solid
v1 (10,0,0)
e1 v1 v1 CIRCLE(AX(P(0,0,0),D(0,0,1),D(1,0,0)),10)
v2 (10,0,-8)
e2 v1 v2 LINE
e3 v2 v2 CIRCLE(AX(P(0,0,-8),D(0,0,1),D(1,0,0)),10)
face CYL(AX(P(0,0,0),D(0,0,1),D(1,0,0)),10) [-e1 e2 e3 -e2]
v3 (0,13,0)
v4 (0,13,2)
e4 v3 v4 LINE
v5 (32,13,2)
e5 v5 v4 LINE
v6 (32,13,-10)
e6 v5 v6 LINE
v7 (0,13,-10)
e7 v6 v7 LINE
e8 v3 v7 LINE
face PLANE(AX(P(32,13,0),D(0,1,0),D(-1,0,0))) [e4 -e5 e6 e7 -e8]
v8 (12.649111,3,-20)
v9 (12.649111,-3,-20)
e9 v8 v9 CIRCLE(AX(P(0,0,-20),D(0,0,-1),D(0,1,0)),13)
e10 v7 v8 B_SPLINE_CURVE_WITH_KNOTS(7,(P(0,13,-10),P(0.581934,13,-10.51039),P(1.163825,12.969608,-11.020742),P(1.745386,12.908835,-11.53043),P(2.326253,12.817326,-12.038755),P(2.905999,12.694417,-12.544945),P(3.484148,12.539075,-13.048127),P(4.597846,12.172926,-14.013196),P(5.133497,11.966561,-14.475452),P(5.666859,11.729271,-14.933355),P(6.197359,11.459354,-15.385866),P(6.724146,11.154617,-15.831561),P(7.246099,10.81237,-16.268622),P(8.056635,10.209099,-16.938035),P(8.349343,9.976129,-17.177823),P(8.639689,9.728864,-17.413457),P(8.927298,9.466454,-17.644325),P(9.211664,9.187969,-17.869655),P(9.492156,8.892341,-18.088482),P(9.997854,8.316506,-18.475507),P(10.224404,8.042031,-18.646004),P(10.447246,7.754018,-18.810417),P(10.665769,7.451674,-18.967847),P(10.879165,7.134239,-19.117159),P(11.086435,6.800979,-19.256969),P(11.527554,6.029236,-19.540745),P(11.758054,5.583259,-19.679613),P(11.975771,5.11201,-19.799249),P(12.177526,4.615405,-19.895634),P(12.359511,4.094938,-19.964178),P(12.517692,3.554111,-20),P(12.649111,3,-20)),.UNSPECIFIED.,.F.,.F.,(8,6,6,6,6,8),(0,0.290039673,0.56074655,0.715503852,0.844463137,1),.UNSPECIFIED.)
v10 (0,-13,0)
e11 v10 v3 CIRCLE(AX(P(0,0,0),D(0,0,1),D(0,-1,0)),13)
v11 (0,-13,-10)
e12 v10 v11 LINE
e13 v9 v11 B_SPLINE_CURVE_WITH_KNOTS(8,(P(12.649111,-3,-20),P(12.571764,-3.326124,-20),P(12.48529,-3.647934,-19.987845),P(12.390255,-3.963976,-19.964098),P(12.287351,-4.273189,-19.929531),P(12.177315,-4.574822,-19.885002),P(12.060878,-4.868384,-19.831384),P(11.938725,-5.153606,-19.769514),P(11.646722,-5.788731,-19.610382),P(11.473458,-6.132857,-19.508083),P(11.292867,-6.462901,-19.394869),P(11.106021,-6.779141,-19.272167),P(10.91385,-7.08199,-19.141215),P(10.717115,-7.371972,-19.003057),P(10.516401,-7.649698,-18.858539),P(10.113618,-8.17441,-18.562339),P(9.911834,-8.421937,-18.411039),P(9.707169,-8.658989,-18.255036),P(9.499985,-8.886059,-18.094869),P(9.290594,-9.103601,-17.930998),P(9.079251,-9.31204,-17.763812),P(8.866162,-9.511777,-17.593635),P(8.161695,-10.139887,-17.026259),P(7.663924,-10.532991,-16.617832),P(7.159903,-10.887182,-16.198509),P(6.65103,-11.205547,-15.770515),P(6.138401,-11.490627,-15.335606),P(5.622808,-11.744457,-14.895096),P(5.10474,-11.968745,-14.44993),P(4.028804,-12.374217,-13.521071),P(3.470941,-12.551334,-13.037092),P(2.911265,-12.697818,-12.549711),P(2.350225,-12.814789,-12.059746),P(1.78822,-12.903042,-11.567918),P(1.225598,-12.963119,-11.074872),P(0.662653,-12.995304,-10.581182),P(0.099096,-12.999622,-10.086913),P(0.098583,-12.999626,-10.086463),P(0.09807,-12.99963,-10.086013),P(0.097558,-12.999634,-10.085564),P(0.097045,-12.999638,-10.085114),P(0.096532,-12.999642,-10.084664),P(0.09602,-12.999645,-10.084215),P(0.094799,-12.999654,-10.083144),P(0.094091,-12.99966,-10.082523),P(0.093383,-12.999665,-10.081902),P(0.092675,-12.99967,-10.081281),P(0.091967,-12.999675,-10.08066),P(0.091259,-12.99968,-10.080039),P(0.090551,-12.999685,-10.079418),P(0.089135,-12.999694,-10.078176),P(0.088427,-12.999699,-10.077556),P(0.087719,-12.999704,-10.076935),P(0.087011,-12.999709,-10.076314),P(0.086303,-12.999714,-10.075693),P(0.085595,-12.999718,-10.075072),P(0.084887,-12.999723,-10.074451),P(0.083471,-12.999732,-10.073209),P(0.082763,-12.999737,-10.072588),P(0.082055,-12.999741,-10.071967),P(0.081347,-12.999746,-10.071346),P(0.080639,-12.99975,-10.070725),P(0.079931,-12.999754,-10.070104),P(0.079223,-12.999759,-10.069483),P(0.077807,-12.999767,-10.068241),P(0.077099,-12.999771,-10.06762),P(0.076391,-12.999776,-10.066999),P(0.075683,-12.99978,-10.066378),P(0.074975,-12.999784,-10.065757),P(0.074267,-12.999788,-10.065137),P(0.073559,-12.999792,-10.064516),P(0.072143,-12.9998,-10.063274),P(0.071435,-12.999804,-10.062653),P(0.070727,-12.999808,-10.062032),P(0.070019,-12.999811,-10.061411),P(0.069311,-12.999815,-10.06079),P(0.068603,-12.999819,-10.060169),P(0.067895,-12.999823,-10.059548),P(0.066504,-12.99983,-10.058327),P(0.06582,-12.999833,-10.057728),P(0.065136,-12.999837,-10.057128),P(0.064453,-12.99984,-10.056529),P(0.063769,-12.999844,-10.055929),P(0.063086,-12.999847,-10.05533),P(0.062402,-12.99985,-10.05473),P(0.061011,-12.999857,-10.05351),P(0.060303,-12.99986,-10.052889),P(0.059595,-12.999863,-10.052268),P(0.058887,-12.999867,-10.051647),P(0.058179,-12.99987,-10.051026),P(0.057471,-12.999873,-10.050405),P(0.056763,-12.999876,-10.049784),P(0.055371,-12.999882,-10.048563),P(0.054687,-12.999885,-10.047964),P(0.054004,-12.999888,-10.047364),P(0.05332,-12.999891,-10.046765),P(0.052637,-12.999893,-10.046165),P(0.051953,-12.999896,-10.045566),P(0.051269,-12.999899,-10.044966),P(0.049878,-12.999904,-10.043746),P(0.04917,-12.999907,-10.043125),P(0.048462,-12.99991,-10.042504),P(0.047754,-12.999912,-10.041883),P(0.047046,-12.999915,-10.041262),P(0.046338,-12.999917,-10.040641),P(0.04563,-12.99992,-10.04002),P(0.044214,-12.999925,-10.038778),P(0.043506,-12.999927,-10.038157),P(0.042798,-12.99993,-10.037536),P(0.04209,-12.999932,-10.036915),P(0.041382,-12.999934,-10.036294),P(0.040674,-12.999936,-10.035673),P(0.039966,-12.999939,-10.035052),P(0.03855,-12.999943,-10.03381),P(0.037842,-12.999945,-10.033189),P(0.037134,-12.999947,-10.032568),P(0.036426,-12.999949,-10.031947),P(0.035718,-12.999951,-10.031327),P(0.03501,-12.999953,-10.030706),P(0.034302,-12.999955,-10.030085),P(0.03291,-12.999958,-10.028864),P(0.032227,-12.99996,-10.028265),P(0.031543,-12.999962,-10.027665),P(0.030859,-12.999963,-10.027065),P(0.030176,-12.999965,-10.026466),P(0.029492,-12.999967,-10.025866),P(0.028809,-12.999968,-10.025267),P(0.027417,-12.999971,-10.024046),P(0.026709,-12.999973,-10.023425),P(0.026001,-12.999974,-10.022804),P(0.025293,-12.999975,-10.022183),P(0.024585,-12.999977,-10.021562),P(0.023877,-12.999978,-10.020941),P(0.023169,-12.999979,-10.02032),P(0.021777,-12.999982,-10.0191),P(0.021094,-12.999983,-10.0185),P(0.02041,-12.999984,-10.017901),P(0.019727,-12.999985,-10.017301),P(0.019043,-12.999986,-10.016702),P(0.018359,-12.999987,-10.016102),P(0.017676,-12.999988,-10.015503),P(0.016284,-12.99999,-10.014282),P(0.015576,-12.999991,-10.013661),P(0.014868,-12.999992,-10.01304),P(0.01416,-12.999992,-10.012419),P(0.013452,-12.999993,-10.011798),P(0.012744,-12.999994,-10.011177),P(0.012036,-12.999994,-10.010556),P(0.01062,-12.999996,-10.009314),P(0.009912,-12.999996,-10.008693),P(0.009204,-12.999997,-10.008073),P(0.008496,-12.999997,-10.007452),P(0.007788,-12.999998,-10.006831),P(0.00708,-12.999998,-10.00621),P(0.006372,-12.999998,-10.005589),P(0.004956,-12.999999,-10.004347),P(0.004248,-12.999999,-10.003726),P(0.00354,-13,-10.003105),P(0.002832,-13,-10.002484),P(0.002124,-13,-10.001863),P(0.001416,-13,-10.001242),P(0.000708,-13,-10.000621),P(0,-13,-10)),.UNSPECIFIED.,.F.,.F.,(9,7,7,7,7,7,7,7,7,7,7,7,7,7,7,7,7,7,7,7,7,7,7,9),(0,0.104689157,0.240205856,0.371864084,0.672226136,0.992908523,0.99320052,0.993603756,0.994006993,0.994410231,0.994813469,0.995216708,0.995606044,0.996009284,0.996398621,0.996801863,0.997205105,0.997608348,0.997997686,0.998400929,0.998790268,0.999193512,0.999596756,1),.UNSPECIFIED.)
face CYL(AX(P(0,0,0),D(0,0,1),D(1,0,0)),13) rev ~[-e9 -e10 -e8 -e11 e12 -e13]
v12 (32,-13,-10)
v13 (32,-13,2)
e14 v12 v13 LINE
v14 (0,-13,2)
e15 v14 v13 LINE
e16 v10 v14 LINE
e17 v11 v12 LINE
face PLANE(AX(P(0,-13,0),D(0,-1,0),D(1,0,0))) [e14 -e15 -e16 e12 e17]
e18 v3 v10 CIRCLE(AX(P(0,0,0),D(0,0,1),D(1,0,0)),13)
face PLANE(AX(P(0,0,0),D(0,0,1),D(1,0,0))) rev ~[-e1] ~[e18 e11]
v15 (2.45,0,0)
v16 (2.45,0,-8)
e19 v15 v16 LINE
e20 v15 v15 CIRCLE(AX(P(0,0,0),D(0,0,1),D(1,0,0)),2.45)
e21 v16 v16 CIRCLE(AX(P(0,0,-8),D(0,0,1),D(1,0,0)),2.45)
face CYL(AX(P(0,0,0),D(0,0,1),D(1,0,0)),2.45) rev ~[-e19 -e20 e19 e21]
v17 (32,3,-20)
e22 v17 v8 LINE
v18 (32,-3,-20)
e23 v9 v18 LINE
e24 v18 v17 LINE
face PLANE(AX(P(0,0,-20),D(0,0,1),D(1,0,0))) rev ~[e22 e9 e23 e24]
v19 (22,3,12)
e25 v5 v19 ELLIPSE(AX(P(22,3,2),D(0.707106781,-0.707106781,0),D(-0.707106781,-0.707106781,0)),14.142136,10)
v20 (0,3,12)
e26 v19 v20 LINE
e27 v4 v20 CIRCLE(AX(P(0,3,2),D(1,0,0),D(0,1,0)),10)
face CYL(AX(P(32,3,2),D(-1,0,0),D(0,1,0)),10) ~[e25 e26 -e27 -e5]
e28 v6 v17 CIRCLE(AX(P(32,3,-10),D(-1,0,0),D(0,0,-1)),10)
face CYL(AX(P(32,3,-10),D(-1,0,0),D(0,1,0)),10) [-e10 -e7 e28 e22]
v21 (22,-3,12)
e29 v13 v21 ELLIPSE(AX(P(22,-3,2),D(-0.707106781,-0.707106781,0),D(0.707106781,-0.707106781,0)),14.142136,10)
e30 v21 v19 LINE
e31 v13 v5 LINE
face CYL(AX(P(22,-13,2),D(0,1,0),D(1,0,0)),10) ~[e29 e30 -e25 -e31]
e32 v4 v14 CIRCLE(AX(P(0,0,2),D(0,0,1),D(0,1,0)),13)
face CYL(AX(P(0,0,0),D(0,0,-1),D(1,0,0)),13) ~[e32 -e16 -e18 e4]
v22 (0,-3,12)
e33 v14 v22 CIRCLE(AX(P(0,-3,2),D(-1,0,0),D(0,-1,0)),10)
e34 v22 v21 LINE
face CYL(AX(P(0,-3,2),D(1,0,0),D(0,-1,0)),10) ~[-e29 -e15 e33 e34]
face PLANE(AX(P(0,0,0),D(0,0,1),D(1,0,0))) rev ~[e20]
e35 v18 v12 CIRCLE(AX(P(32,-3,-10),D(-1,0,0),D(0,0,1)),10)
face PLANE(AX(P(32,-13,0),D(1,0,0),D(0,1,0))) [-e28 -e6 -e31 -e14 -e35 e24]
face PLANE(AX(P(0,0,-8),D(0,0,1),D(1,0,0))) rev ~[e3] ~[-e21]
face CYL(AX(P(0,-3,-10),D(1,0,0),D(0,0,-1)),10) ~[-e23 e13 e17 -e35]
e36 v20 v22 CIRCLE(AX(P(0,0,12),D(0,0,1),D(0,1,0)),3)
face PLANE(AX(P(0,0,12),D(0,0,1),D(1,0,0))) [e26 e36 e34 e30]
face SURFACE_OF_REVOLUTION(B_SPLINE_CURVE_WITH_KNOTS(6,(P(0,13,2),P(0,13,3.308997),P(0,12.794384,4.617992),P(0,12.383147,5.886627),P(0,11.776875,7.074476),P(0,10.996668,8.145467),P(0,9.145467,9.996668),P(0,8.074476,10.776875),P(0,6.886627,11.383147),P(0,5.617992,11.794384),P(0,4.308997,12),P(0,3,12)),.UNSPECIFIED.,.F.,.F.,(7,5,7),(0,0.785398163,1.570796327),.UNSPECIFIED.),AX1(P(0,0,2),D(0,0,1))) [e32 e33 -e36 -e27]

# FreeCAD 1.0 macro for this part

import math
import FreeCAD as App
import Part
import Sketcher
from FreeCAD import Vector


def edges_at(feature, points):
    """Names of the edges that pass closest to the given points."""
    edges = feature.Shape.Edges
    near = lambda p: min(range(len(edges)), key=lambda i: edges[i].distToShape(Part.Vertex(*p))[0])
    return sorted({f"Edge{near(p) + 1}" for p in points})

doc = App.newDocument("Part")
body = doc.addObject("PartDesign::Body", "Body")

sketch1 = doc.addObject("Sketcher::SketchObject", "Sketch")
body.addObject(sketch1)
sketch1.AttachmentSupport = (doc.XY_Plane, [""])
sketch1.MapMode = "FlatFace"
sketch1.addGeometry([
    Part.Circle(Vector(0, 0, 0), Vector(0, 0, 1), 10),
    Part.Circle(Vector(0, 0, 0), Vector(0, 0, 1), 2.45),
], False)
sketch1.addConstraint([
    Sketcher.Constraint("Coincident", 0, 3, -1, 1),
    Sketcher.Constraint("Coincident", 1, 3, -1, 1),
    Sketcher.Constraint("Diameter", 0, 20.0),
    Sketcher.Constraint("Diameter", 1, 4.9),
])
pad1 = doc.addObject("PartDesign::Pad", "Pad")
body.addObject(pad1)
pad1.Profile = sketch1
pad1.Length = 8
pad1.Reversed = True

sketch2 = doc.addObject("Sketcher::SketchObject", "Sketch001")
body.addObject(sketch2)
sketch2.AttachmentSupport = (doc.XY_Plane, [""])
sketch2.MapMode = "FlatFace"
sketch2.addGeometry([
    Part.ArcOfCircle(Part.Circle(Vector(0, 0, 0), Vector(0, 0, 1), 13), math.radians(90), math.radians(270)),
    Part.LineSegment(Vector(0, -13, 0), Vector(32, -13, 0)),
    Part.LineSegment(Vector(32, -13, 0), Vector(32, 13, 0)),
    Part.LineSegment(Vector(32, 13, 0), Vector(0, 13, 0)),
], False)
sketch2.addConstraint([
    Sketcher.Constraint("Tangent", 0, 2, 1, 1),
    Sketcher.Constraint("Coincident", 1, 2, 2, 1),
    Sketcher.Constraint("Coincident", 2, 2, 3, 1),
    Sketcher.Constraint("Tangent", 3, 2, 0, 1),
    Sketcher.Constraint("Horizontal", 1),
    Sketcher.Constraint("Vertical", 2),
    Sketcher.Constraint("Horizontal", 3),
    Sketcher.Constraint("Coincident", 0, 3, -1, 1),
    Sketcher.Constraint("Radius", 0, 13.0),
    Sketcher.Constraint("DistanceX", 1, 1, 1, 2, 32.0),
])
pad2 = doc.addObject("PartDesign::Pad", "Pad001")
body.addObject(pad2)
pad2.Profile = sketch2
pad2.Length = 12

sketch3 = doc.addObject("Sketcher::SketchObject", "Sketch002")
body.addObject(sketch3)
sketch3.AttachmentSupport = (doc.XY_Plane, [""])
sketch3.MapMode = "FlatFace"
sketch3.addGeometry([
    Part.ArcOfCircle(Part.Circle(Vector(0, 0, 0), Vector(0, 0, 1), 13), math.radians(-90), math.radians(90)),
    Part.LineSegment(Vector(0, -13, 0), Vector(32, -13, 0)),
    Part.LineSegment(Vector(32, -13, 0), Vector(32, 13, 0)),
    Part.LineSegment(Vector(32, 13, 0), Vector(0, 13, 0)),
], False)
sketch3.addConstraint([
    Sketcher.Constraint("Tangent", 0, 1, 1, 1),
    Sketcher.Constraint("Coincident", 1, 2, 2, 1),
    Sketcher.Constraint("Coincident", 2, 2, 3, 1),
    Sketcher.Constraint("Tangent", 3, 2, 0, 2),
    Sketcher.Constraint("Horizontal", 1),
    Sketcher.Constraint("Vertical", 2),
    Sketcher.Constraint("Horizontal", 3),
    Sketcher.Constraint("Coincident", 0, 3, -1, 1),
    Sketcher.Constraint("Radius", 0, 13.0),
    Sketcher.Constraint("DistanceX", 1, 1, 1, 2, 32.0),
])
pad3 = doc.addObject("PartDesign::Pad", "Pad002")
body.addObject(pad3)
pad3.Profile = sketch3
pad3.Length = 20
pad3.Reversed = True
doc.recompute()

fillet = doc.addObject("PartDesign::Fillet", "Fillet")
body.addObject(fillet)
fillet.Base = (pad3, edges_at(pad3, [
    (16, -13, -20),
    (-13, 0, 12),
    (16, 13, 12),
    (16, -13, 12),
    (16, 13, -20),
    (32, 0, 12),
]))
fillet.Radius = 10

doc.recompute()
